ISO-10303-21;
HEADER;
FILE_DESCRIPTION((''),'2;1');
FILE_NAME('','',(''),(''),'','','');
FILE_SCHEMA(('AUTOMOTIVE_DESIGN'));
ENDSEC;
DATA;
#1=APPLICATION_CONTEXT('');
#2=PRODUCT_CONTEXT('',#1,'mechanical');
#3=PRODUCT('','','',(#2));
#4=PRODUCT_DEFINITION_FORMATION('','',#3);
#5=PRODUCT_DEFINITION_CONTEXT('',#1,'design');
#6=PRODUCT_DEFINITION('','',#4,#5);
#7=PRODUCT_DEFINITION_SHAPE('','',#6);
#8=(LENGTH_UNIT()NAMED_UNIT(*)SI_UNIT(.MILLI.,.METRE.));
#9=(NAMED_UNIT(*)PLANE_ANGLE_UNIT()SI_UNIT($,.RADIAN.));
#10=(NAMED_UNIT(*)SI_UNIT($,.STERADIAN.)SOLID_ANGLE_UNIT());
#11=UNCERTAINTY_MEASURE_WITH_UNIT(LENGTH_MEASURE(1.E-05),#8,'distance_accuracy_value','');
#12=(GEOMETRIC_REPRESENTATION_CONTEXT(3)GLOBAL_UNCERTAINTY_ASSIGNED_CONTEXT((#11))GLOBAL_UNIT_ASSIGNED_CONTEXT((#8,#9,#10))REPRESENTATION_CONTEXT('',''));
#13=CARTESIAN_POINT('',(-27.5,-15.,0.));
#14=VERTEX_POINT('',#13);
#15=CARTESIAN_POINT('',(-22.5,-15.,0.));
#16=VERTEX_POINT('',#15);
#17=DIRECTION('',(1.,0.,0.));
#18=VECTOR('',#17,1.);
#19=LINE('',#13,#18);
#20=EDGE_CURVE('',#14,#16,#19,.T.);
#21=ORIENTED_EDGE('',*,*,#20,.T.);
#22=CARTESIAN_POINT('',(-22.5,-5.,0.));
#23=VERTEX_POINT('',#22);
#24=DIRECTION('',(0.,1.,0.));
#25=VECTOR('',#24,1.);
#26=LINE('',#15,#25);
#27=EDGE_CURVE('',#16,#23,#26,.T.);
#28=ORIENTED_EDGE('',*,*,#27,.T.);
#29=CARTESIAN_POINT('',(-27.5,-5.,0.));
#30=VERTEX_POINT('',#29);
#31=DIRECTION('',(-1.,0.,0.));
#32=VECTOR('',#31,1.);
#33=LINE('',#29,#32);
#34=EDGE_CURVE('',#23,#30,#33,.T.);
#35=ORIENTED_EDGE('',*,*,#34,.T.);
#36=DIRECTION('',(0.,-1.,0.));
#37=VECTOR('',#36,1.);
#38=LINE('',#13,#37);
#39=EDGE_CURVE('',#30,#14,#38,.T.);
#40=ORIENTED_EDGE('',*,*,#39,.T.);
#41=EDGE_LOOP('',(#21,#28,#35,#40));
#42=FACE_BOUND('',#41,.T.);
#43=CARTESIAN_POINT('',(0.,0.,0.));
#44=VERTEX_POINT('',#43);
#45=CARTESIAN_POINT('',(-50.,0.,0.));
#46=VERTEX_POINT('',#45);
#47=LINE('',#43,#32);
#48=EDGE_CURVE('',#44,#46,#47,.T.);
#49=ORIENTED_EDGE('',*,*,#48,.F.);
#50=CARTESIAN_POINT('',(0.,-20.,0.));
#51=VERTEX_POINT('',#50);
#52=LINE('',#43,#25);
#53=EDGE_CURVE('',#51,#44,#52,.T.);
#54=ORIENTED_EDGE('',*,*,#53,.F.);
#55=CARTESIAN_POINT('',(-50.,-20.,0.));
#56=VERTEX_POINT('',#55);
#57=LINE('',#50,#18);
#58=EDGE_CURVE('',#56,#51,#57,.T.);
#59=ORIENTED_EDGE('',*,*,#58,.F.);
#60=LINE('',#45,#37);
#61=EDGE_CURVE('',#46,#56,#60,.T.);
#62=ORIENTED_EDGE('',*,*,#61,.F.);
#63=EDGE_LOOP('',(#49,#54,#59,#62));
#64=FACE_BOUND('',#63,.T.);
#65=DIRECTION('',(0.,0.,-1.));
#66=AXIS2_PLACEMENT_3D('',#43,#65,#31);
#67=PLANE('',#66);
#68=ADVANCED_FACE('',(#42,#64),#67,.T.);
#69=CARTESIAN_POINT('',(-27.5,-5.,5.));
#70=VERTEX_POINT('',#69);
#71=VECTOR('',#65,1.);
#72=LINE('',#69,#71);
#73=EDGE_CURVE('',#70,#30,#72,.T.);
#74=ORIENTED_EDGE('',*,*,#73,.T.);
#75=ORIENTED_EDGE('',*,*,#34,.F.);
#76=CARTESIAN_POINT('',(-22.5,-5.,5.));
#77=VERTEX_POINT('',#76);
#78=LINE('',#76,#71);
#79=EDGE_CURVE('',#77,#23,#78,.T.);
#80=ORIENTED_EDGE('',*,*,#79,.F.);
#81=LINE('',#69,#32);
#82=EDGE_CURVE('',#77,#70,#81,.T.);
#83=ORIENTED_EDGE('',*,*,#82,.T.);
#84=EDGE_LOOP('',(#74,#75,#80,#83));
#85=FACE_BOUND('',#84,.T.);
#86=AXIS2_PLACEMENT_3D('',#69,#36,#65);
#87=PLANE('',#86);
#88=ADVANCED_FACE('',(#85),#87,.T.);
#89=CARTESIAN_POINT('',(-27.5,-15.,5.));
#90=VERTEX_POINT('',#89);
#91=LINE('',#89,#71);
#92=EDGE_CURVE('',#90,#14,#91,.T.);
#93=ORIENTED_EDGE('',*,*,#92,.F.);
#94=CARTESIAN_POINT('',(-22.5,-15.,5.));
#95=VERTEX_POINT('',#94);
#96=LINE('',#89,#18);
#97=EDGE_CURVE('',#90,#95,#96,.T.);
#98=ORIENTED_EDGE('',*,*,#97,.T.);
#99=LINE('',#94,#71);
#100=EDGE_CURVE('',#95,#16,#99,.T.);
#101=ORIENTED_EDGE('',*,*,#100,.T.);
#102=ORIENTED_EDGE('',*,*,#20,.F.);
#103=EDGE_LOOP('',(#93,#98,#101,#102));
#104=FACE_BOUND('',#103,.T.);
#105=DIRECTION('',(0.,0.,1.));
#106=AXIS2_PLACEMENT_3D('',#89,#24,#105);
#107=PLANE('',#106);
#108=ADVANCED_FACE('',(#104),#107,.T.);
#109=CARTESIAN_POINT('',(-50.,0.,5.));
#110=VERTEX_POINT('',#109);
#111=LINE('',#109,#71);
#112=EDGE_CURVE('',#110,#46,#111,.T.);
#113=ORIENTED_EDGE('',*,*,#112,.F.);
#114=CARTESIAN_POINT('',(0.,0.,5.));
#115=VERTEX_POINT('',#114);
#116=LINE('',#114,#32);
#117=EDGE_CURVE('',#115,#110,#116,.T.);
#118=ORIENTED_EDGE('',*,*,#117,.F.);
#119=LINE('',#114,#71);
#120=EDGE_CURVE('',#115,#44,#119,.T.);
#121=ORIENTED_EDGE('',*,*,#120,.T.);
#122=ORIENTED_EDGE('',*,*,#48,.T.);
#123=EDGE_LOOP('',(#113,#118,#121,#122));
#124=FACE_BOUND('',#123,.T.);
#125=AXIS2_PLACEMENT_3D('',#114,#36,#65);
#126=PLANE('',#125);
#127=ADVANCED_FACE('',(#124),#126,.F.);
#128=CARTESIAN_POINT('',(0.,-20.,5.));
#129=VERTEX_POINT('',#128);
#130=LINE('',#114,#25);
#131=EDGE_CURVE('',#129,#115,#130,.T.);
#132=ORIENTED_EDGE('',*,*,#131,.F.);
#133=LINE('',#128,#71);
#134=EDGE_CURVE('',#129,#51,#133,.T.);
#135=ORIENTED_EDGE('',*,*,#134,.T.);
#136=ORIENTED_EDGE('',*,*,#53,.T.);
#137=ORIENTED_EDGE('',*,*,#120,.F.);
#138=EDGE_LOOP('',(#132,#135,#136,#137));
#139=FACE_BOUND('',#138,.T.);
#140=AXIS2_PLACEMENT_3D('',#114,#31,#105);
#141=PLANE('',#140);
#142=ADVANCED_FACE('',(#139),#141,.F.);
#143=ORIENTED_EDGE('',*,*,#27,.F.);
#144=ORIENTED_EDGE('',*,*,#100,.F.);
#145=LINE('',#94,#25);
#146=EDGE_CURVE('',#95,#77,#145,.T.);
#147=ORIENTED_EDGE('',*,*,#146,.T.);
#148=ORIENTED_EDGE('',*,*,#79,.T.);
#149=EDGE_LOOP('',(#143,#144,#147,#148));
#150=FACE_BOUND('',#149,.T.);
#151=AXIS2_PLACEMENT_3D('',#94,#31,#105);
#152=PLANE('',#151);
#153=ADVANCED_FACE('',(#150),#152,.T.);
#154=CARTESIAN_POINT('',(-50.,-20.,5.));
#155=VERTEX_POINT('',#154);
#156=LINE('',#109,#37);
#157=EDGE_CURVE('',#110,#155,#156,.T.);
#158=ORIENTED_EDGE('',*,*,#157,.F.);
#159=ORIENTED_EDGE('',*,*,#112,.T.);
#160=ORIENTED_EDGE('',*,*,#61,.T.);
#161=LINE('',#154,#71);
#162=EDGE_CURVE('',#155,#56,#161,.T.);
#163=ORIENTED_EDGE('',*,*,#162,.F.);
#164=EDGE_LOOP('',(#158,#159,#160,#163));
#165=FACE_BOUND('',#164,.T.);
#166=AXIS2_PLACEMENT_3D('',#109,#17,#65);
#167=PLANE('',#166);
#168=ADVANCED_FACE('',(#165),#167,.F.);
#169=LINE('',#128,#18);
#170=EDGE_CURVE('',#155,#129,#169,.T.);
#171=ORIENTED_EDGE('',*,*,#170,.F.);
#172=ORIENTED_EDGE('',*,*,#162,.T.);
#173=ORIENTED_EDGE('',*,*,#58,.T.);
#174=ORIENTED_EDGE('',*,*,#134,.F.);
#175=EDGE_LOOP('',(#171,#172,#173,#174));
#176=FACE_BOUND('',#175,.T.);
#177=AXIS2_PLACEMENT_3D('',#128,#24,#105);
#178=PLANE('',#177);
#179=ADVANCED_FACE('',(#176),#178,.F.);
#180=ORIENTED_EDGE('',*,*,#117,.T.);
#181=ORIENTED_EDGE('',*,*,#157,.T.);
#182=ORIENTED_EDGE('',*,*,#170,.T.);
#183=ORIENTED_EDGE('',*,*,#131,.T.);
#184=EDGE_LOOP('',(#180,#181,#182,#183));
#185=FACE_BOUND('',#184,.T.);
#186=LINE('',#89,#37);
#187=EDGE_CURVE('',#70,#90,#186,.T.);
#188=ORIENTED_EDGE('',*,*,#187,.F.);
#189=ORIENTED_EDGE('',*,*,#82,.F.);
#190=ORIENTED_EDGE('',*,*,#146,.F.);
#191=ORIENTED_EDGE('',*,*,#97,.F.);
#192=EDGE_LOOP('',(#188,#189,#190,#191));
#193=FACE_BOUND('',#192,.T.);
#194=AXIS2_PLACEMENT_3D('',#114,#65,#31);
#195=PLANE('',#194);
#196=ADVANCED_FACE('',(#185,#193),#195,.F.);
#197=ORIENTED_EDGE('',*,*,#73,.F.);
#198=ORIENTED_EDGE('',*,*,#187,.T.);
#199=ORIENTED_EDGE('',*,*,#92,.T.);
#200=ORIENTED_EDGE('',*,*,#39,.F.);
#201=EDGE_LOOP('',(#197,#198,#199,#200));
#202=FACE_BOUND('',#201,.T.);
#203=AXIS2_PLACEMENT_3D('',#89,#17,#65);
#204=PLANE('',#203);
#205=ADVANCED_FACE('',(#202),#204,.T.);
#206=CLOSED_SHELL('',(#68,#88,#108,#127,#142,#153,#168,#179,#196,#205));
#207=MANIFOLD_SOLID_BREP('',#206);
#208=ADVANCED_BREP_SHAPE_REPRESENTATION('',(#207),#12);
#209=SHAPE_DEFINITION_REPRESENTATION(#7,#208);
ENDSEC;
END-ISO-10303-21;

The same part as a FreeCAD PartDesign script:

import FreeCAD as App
import Part
import Sketcher
from FreeCAD import Vector
Q = App.Units.Quantity


def add_polygon(sketch, points):
    """Adds a closed chain of lines whose ends are joined by coincident constraints."""
    first, n = sketch.GeometryCount, len(points)
    for a, b in zip(points, points[1:] + points[:1]):
        sketch.addGeometry(Part.LineSegment(App.Vector(*a, 0), App.Vector(*b, 0)), False)
    for i in range(n):
        sketch.addConstraint(Sketcher.Constraint("Coincident", first + i, 2, first + (i + 1) % n, 1))

doc = App.newDocument("Part")
params = doc.addObject("Spreadsheet::Sheet", "Params")
for row, (alias, value) in enumerate([
    ("sketch1_width", "50 mm"),
    ("sketch1_width2", "5 mm"),
    ("sketch1_height", "20 mm"),
    ("sketch1_height2", "10 mm"),
    ("pad1_length", "5 mm"),
], start=1):
    params.set(f"A{row}", alias)
    params.set(f"B{row}", "=" + value)
    params.setAlias(f"B{row}", alias)

body = doc.addObject("PartDesign::Body", "Body")

# Sketch on XY plane
sketch1 = body.newObject("Sketcher::SketchObject", "Sketch")
sketch1.AttachmentSupport = (doc.getObject("XY_Plane"), [""])
sketch1.MapMode = "FlatFace"
add_polygon(sketch1, [(-50, 0), (-50, -20), (0, -20), (0, 0)])  # lines 0-3
add_polygon(sketch1, [(-22, -15), (-28, -15), (-28, -5), (-22, -5)])  # lines 4-7
sketch1.addConstraint(Sketcher.Constraint("Vertical", 0))
sketch1.addConstraint(Sketcher.Constraint("Horizontal", 1))
sketch1.addConstraint(Sketcher.Constraint("Vertical", 2))
sketch1.addConstraint(Sketcher.Constraint("Horizontal", 3))
sketch1.addConstraint(Sketcher.Constraint("Horizontal", 4))
sketch1.addConstraint(Sketcher.Constraint("Vertical", 5))
sketch1.addConstraint(Sketcher.Constraint("Horizontal", 6))
sketch1.addConstraint(Sketcher.Constraint("Vertical", 7))
sketch1.addConstraint(Sketcher.Constraint("Coincident", 2, 2, -1, 1))
sketch1.addConstraint(Sketcher.Constraint("DistanceX", 1, 1, 1, 2, Q("50 mm")))
sketch1.addConstraint(Sketcher.Constraint("DistanceX", 4, 2, 4, 1, Q("5 mm")))
sketch1.addConstraint(Sketcher.Constraint("DistanceY", 0, 2, 0, 1, Q("20 mm")))
sketch1.addConstraint(Sketcher.Constraint("DistanceY", 5, 1, 5, 2, Q("10 mm")))
sketch1.addConstraint(Sketcher.Constraint("DistanceY", 4, 2, -1, 1, Q("15 mm")))
sketch1.addConstraint(Sketcher.Constraint("DistanceX", 4, 2, -1, 1, Q("27.5 mm")))
sketch1.setExpression("Constraints[17]", "Params.sketch1_width")
sketch1.setExpression("Constraints[18]", "Params.sketch1_width2")
sketch1.setExpression("Constraints[19]", "Params.sketch1_height")
sketch1.setExpression("Constraints[20]", "Params.sketch1_height2")
pad1 = body.newObject("PartDesign::Pad", "Pad")
pad1.Profile = sketch1
pad1.setExpression("Length", "Params.pad1_length")

doc.recompute()
